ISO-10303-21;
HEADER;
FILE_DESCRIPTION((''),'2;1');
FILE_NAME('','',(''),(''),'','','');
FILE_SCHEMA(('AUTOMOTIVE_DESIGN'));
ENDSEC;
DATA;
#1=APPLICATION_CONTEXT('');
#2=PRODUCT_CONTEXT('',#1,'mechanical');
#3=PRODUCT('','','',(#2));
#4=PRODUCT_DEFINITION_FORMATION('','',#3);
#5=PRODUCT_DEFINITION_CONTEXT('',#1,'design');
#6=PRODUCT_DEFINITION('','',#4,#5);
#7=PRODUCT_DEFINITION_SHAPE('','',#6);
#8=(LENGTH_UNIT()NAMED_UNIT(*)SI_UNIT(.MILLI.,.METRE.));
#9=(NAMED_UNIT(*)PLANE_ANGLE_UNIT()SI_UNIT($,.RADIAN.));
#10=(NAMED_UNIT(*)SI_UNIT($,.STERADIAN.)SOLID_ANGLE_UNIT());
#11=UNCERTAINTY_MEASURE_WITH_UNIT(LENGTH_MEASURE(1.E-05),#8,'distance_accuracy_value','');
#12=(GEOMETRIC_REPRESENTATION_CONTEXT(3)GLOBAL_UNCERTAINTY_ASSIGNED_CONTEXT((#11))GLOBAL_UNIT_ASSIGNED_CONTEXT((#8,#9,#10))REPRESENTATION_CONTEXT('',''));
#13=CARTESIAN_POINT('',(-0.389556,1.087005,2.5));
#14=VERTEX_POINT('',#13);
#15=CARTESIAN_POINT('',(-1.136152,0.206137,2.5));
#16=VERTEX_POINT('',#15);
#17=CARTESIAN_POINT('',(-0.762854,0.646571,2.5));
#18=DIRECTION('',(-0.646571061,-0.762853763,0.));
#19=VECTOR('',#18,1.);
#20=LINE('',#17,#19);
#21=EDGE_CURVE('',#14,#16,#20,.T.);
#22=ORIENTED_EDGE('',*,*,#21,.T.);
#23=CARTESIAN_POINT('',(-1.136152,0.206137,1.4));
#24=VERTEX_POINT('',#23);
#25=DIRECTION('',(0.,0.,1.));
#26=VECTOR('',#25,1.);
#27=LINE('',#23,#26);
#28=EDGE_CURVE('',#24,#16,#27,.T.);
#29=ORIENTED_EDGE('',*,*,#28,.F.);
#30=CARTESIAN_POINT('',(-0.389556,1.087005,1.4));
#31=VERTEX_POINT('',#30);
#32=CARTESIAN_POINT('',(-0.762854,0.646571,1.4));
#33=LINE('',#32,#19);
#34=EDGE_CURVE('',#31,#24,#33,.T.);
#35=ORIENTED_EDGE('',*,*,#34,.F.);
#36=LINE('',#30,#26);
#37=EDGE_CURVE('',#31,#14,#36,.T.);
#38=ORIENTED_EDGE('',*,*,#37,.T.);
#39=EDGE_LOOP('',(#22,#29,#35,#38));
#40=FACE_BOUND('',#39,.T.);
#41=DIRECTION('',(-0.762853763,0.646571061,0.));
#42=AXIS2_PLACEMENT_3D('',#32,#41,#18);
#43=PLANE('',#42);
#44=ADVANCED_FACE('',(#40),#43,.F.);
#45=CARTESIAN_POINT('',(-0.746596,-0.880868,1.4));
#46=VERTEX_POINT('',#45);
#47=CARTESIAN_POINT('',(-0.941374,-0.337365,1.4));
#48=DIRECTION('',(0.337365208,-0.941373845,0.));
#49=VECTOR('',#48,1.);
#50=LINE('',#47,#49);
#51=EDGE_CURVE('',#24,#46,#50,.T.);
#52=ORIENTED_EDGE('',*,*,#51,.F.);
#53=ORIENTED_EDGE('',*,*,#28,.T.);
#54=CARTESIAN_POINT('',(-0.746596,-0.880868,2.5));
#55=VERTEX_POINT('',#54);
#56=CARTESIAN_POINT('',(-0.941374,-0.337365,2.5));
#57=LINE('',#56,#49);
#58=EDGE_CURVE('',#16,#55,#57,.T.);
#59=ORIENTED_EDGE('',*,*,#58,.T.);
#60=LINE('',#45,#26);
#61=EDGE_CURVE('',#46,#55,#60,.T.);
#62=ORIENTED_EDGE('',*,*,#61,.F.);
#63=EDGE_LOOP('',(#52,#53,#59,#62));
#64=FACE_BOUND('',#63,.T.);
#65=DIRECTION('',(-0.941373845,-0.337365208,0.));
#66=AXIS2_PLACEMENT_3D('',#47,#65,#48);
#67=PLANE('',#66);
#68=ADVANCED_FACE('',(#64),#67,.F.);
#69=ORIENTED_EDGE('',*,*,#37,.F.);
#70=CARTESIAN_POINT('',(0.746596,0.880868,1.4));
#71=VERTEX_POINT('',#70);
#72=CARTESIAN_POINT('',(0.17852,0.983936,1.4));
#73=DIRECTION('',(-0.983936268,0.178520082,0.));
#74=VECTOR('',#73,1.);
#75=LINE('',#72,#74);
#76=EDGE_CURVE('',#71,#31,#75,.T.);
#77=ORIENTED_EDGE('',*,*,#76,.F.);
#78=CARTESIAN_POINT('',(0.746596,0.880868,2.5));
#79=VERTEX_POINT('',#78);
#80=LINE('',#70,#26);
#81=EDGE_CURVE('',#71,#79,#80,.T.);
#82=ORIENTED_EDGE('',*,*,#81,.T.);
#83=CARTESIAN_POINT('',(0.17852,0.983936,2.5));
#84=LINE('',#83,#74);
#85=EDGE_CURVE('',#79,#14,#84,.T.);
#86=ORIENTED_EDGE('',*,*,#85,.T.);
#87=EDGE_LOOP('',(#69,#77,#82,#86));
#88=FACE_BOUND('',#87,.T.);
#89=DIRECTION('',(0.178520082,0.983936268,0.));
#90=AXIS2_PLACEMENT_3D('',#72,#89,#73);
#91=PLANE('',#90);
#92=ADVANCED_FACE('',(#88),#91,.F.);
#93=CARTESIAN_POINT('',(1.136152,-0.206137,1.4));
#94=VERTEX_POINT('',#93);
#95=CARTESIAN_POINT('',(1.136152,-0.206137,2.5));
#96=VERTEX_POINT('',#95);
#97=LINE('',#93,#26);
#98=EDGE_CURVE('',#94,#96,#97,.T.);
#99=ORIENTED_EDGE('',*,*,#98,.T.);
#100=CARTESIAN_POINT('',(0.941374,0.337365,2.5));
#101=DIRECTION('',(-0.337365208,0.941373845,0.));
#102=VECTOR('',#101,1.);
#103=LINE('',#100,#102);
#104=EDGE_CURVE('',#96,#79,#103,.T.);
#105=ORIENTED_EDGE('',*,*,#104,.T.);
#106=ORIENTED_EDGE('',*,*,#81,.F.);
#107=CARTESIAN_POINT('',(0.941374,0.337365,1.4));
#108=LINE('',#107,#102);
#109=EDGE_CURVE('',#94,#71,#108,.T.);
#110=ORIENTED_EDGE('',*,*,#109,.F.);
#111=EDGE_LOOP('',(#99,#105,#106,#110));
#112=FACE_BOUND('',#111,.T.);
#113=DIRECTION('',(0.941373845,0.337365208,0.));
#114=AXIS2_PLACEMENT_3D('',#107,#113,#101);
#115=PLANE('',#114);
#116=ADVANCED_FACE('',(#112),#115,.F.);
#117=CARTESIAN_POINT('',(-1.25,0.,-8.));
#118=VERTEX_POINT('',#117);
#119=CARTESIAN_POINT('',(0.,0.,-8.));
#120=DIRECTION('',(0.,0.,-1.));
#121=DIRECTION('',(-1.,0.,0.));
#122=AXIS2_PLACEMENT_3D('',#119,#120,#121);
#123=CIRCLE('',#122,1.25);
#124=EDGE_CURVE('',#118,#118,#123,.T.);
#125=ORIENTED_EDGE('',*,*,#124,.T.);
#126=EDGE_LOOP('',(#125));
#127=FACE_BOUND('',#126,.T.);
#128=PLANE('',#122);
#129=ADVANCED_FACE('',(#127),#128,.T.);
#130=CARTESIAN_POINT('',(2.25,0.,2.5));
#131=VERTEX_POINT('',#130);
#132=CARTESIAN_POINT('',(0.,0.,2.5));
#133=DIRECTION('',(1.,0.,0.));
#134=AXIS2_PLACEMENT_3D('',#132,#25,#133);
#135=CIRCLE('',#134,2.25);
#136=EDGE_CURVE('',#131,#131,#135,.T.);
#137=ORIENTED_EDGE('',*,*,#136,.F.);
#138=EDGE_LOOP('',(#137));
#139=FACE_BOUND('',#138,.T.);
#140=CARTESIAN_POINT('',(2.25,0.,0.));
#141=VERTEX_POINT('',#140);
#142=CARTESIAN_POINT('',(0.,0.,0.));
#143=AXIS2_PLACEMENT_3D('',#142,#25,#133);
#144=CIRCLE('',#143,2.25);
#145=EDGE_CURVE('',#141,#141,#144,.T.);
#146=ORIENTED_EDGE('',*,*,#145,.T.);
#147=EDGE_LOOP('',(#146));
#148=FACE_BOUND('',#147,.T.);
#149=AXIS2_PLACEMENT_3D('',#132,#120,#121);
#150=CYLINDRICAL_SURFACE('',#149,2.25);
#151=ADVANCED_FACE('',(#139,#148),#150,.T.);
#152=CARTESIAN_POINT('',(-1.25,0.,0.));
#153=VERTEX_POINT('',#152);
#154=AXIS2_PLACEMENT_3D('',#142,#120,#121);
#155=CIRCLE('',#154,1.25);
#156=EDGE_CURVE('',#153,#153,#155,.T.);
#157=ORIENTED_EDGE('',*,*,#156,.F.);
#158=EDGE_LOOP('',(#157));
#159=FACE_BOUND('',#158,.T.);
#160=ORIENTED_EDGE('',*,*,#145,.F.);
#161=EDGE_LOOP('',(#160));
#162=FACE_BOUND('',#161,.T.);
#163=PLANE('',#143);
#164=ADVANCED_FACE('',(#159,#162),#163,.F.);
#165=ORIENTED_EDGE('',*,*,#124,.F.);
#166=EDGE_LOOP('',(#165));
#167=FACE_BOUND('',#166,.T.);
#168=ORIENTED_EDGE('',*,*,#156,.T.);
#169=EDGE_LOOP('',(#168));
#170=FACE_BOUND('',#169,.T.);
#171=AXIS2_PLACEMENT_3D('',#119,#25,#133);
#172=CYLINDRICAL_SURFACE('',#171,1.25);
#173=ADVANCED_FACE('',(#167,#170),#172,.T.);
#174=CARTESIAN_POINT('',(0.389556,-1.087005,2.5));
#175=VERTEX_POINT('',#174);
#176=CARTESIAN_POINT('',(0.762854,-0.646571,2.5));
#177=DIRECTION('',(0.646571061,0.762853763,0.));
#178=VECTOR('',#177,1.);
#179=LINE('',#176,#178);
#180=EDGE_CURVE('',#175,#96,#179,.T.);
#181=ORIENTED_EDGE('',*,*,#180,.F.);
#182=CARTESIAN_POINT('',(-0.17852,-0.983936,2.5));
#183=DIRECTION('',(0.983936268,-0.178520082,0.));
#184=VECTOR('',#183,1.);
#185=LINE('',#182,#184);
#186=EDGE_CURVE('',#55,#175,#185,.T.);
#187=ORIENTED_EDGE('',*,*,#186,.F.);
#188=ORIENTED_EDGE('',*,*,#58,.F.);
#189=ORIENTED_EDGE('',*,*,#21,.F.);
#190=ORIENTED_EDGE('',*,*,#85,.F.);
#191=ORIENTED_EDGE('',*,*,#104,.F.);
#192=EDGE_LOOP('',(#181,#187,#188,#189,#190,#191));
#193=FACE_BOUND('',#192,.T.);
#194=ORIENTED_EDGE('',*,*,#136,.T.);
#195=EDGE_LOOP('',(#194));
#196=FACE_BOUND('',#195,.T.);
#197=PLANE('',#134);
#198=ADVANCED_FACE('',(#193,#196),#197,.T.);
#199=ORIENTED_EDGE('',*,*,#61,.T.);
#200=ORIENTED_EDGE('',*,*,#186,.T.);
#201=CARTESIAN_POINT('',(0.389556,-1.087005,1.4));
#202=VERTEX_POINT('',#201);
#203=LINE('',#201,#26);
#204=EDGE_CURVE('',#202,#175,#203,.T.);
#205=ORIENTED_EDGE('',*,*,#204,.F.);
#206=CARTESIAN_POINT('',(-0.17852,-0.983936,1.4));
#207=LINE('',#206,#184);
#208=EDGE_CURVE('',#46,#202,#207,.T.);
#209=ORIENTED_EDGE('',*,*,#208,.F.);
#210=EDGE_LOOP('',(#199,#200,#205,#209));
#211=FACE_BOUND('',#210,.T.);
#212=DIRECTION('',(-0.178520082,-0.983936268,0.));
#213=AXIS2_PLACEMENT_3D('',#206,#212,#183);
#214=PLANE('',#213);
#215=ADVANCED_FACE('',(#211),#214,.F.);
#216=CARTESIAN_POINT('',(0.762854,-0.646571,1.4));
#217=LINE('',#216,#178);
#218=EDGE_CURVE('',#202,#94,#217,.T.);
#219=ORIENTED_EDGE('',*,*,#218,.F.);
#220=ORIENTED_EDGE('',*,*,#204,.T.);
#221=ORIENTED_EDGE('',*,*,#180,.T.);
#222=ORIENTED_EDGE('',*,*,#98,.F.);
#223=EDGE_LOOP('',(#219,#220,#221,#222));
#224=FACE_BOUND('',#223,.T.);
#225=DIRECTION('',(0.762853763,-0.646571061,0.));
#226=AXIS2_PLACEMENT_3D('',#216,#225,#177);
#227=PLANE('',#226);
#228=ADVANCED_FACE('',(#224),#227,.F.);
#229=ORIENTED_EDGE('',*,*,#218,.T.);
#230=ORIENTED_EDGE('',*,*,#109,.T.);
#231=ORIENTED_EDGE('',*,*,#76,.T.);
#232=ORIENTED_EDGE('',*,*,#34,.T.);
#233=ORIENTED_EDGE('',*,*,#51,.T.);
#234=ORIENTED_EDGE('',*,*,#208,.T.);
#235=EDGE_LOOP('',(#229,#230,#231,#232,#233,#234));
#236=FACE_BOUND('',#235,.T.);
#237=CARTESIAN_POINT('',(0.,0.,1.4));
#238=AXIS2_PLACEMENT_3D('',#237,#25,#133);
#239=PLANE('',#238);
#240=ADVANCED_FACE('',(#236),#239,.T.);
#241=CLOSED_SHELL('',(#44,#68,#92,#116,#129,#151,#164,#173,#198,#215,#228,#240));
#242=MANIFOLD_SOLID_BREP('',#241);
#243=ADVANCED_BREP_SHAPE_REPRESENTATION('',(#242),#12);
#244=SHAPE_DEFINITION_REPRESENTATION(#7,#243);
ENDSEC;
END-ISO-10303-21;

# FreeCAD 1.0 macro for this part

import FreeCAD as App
import Part
import Sketcher

V = App.Vector
Q = App.Units.Quantity


def add_polygon(sketch, points):
    """Adds a closed chain of lines whose ends are joined by coincident constraints."""
    first, n = sketch.GeometryCount, len(points)
    for a, b in zip(points, points[1:] + points[:1]):
        sketch.addGeometry(Part.LineSegment(App.Vector(*a, 0), App.Vector(*b, 0)), False)
    for i in range(n):
        sketch.addConstraint(Sketcher.Constraint("Coincident", first + i, 2, first + (i + 1) % n, 1))

doc = App.newDocument("Part")
body = doc.addObject("PartDesign::Body", "Body")

# Sketch on XY plane
sketch1 = body.newObject("Sketcher::SketchObject", "Sketch")
sketch1.AttachmentSupport = (doc.getObject("XY_Plane"), [""])
sketch1.MapMode = "FlatFace"
sketch1.addGeometry(Part.Circle(V(0, 0, 0), V(0, 0, 1), 2.25), False)
sketch1.addConstraint([
    Sketcher.Constraint("Coincident", 0, 3, -1, 1),
    Sketcher.Constraint("Diameter", 0, Q("4.5 mm")),
])
pad1 = body.newObject("PartDesign::Pad", "Pad")
pad1.Profile = sketch1
pad1.Length = 2.5

# Sketch on XY plane
sketch2 = body.newObject("Sketcher::SketchObject", "Sketch001")
sketch2.AttachmentSupport = (doc.getObject("XY_Plane"), [""])
sketch2.MapMode = "FlatFace"
sketch2.AttachmentOffset = App.Placement(V(0, 0, 2.5), App.Rotation())
add_polygon(sketch2, [(-0.746596, -0.880868), (0.389556, -1.087005), (1.136152, -0.206137), (0.746596, 0.880868), (-0.389556, 1.087005), (-1.136152, 0.206137)])  # lines 0-5
sketch2.addConstraint([
    Sketcher.Constraint("Symmetric", 0, 2, 3, 2, -1, 1),
    Sketcher.Constraint("Symmetric", 1, 2, 4, 2, -1, 1),
    Sketcher.Constraint("Symmetric", 2, 2, 5, 2, -1, 1),
    Sketcher.Constraint("Equal", 0, 1),
    Sketcher.Constraint("Equal", 1, 2),
    Sketcher.Constraint("Distance", 0, Q("1.154701 mm")),
    Sketcher.Constraint("DistanceX", -1, 1, 1, 2, Q("1.136152 mm")),
    Sketcher.Constraint("DistanceX", 0, 2, 2, 2, Q("0.35704 mm")),
    Sketcher.Constraint("DistanceX", 3, 2, 2, 2, Q("1.136152 mm")),
])
pocket1 = body.newObject("PartDesign::Pocket", "Pocket")
pocket1.Profile = sketch2
pocket1.Length = 1.1

# Sketch on XY plane
sketch3 = body.newObject("Sketcher::SketchObject", "Sketch002")
sketch3.AttachmentSupport = (doc.getObject("XY_Plane"), [""])
sketch3.MapMode = "FlatFace"
sketch3.addGeometry(Part.Circle(V(0, 0, 0), V(0, 0, 1), 1.25), False)
sketch3.addConstraint([
    Sketcher.Constraint("Coincident", 0, 3, -1, 1),
    Sketcher.Constraint("Diameter", 0, Q("2.5 mm")),
])
pad2 = body.newObject("PartDesign::Pad", "Pad001")
pad2.Profile = sketch3
pad2.Length = 8
pad2.Reversed = True

doc.recompute()
